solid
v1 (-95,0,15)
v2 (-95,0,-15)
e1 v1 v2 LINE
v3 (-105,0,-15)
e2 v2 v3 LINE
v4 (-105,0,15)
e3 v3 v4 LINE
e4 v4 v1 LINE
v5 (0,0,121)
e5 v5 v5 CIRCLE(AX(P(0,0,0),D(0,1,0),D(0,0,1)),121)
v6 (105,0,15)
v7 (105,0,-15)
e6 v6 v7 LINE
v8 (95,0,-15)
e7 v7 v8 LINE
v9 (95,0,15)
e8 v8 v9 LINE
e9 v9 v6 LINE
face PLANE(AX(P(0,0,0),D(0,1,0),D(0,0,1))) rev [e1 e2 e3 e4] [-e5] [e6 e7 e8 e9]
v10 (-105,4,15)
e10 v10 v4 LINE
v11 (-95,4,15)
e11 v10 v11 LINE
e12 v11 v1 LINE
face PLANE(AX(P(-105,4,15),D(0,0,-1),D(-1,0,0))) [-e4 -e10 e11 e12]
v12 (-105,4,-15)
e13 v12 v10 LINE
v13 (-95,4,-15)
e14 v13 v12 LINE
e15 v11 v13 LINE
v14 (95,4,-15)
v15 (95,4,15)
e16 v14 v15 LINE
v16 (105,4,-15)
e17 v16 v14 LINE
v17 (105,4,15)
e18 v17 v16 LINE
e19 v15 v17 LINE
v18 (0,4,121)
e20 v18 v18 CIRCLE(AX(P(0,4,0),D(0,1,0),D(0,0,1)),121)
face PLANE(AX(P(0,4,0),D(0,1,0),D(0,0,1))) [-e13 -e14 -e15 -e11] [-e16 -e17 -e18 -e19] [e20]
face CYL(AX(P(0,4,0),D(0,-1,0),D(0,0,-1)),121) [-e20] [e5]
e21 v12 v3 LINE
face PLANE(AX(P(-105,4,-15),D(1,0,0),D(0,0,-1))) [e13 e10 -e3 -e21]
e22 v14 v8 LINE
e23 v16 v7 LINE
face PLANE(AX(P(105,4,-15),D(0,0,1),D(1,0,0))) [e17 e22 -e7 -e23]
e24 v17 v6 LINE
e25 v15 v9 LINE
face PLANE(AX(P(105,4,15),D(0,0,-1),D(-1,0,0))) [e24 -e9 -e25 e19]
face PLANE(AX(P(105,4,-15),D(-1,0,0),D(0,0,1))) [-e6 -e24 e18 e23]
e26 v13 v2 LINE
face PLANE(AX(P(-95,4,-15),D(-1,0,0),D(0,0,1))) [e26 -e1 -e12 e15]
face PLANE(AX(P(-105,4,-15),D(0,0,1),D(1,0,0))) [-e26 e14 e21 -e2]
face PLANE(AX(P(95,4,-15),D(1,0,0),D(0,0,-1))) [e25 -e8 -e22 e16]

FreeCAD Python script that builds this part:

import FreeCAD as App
import Part
import Sketcher
Q = App.Units.Quantity


def add_polygon(sketch, points):
    """Adds a closed chain of lines whose ends are joined by coincident constraints."""
    first, n = sketch.GeometryCount, len(points)
    for a, b in zip(points, points[1:] + points[:1]):
        sketch.addGeometry(Part.LineSegment(App.Vector(*a, 0), App.Vector(*b, 0)), False)
    for i in range(n):
        sketch.addConstraint(Sketcher.Constraint("Coincident", first + i, 2, first + (i + 1) % n, 1))

doc = App.newDocument("Part")
body = doc.addObject("PartDesign::Body", "Body")

sketch1 = body.newObject("Sketcher::SketchObject", "Sketch")
sketch1.AttachmentSupport = (doc.getObject("XZ_Plane"), [""])
sketch1.MapMode = "FlatFace"
sketch1.addGeometry(Part.Circle(App.Vector(0, 0, 0), App.Vector(0, 0, 1), 121), False)
add_polygon(sketch1, [(-105, -15), (-95, -15), (-95, 15), (-105, 15)])
add_polygon(sketch1, [(95, -15), (105, -15), (105, 15), (95, 15)])
sketch1.addConstraint([
    Sketcher.Constraint("Horizontal", 1),
    Sketcher.Constraint("Vertical", 2),
    Sketcher.Constraint("Horizontal", 3),
    Sketcher.Constraint("Vertical", 4),
    Sketcher.Constraint("Horizontal", 5),
    Sketcher.Constraint("Vertical", 6),
    Sketcher.Constraint("Horizontal", 7),
    Sketcher.Constraint("Vertical", 8),
    Sketcher.Constraint("Coincident", 0, 3, -1, 1),
    Sketcher.Constraint("Symmetric", 3, 2, 5, 2, -1, 1),
    Sketcher.Constraint("Symmetric", 1, 2, 7, 2, -1, 1),
    Sketcher.Constraint("Horizontal", 4, 2, 5, 2),
    Sketcher.Constraint("Diameter", 0, Q("242 mm")),
    Sketcher.Constraint("DistanceX", 1, 1, 1, 2, Q("10 mm")),
    Sketcher.Constraint("DistanceY", 2, 1, 2, 2, Q("30 mm")),
    Sketcher.Constraint("DistanceX", 1, 2, -1, 1, Q("95 mm")),
])
pad1 = body.newObject("PartDesign::Pad", "Pad")
pad1.Profile = sketch1
pad1.Length = 4
pad1.Reversed = True

doc.recompute()
